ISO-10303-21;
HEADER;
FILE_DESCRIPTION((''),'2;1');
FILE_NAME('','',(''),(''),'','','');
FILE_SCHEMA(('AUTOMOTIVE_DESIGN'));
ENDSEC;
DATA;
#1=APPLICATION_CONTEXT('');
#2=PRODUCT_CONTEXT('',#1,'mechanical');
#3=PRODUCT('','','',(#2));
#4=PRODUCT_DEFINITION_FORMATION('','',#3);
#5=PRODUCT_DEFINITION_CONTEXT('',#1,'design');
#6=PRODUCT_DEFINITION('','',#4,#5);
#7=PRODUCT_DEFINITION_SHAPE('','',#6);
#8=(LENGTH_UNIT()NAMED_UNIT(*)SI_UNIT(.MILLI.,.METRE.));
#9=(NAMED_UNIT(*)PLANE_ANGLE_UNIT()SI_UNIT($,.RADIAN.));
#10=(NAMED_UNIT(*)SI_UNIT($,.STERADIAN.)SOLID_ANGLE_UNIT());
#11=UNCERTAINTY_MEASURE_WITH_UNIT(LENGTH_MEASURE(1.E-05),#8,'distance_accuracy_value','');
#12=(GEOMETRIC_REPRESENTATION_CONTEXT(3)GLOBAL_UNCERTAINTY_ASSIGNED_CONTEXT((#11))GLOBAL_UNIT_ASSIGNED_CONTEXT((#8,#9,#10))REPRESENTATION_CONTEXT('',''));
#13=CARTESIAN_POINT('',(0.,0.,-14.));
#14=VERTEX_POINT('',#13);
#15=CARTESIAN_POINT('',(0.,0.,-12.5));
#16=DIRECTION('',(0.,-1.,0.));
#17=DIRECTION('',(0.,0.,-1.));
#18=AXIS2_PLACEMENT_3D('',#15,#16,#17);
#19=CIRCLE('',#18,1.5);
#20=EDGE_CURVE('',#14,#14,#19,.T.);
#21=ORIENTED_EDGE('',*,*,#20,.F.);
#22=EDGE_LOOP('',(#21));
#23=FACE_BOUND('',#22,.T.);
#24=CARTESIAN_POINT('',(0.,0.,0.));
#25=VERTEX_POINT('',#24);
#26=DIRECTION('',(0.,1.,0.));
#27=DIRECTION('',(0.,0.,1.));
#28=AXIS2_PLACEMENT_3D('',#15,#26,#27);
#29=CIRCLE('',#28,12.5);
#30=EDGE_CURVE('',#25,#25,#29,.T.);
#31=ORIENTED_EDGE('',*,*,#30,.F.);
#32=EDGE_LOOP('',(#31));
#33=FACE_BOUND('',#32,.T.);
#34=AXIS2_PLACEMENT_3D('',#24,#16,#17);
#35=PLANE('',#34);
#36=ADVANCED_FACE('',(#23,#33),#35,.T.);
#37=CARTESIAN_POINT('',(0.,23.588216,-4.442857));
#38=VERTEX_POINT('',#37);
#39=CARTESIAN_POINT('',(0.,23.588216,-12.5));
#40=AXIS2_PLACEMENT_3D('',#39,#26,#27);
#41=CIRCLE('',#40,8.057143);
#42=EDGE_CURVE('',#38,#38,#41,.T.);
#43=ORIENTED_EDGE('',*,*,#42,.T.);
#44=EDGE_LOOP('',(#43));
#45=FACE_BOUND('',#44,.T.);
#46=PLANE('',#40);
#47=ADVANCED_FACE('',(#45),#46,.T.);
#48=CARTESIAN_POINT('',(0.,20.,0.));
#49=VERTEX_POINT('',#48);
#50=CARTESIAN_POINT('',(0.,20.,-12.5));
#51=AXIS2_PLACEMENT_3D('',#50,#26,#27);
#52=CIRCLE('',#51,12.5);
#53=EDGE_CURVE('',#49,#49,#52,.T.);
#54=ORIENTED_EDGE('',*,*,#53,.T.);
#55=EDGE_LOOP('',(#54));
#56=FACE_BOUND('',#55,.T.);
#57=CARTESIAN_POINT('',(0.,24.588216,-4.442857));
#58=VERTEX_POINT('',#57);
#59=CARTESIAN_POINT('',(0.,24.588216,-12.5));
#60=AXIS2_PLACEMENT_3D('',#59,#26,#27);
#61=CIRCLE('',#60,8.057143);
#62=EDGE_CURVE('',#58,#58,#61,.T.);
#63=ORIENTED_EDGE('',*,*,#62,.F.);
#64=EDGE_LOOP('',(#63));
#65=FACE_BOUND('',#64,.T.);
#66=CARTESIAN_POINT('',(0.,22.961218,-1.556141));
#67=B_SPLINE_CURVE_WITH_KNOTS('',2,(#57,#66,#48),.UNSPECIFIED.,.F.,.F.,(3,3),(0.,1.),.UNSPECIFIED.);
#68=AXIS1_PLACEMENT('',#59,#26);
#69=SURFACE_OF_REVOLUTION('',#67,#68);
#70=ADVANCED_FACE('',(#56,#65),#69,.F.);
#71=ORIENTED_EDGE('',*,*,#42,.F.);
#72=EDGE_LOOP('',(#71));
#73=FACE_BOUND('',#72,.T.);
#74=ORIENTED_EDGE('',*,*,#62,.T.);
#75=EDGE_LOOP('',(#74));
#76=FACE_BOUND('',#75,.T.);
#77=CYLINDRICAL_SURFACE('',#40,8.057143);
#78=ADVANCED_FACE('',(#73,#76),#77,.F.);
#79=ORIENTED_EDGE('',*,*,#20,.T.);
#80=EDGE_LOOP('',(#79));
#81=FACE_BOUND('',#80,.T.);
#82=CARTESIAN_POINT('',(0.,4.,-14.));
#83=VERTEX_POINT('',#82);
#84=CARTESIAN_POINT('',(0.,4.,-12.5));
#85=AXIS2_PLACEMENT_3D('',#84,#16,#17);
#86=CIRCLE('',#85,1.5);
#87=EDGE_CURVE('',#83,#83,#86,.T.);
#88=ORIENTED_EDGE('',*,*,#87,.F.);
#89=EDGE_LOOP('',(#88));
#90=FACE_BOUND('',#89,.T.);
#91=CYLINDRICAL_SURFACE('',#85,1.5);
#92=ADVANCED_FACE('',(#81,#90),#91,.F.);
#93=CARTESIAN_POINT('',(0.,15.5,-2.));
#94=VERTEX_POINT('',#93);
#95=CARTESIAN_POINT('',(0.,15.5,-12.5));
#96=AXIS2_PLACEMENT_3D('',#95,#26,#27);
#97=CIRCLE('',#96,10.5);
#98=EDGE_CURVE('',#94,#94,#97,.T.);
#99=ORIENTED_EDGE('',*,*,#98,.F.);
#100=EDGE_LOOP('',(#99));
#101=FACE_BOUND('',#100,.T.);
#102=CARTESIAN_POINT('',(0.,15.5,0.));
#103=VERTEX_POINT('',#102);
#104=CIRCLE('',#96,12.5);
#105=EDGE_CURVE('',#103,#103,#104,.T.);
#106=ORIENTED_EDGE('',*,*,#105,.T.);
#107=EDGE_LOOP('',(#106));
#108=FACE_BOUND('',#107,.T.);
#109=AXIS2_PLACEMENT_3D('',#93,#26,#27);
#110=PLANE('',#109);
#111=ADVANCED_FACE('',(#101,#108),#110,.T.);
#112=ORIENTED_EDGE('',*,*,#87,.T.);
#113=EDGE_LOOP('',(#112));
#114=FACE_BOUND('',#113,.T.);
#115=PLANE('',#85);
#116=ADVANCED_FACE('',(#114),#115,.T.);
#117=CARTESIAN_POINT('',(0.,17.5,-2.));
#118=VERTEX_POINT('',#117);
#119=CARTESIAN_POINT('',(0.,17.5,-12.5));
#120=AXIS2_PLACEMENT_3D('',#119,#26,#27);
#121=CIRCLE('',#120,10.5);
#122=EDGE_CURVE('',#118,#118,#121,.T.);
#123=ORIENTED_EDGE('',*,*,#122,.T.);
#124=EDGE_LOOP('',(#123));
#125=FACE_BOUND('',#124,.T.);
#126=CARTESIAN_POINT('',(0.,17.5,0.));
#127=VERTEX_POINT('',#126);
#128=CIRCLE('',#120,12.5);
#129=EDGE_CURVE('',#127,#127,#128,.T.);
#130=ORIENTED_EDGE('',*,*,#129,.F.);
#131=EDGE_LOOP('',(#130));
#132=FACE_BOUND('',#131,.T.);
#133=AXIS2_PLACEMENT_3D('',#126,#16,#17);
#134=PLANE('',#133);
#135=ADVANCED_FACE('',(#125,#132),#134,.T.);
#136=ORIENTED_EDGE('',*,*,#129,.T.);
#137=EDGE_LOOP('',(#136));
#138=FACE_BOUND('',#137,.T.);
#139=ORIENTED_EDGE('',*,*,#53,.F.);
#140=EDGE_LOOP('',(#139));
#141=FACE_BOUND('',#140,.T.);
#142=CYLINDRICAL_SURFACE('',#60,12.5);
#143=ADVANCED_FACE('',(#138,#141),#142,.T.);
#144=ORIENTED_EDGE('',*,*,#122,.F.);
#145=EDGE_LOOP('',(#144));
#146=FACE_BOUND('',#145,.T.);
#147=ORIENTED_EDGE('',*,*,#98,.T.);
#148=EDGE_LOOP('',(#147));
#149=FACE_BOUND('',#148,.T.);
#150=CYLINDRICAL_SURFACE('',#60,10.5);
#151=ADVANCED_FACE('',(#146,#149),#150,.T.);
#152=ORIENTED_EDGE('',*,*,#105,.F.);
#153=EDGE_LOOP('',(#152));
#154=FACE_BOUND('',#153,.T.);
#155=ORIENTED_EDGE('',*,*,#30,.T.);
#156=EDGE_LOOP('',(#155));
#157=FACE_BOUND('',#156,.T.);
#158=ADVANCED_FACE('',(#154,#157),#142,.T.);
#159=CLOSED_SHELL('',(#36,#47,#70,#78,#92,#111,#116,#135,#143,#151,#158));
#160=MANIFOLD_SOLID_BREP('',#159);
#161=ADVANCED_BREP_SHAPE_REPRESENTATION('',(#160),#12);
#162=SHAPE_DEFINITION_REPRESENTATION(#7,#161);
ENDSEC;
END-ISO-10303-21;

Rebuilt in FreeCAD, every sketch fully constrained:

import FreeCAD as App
import Part
import Sketcher

V = App.Vector

doc = App.newDocument("Part")
body = doc.addObject("PartDesign::Body", "Body")

# Sketch on YZ plane
sketch1 = body.newObject("Sketcher::SketchObject", "Sketch")
sketch1.AttachmentSupport = (doc.getObject("YZ_Plane"), [""])
sketch1.MapMode = "FlatFace"
sketch1.addGeometry([
    Part.LineSegment(V(15.5, 0, 0), V(0, 0, 0)),  # 0
    Part.LineSegment(V(0, 0, 0), V(0, -12.5, 0)),  # 1
    Part.LineSegment(V(0, -12.5, 0), V(24.588216, -12.5, 0)),  # 2
    Part.LineSegment(V(24.588216, -12.5, 0), V(24.588216, -4.442857, 0)),  # 3
    Part.BSplineCurve([V(20, 0, 0), V(22.961218, -1.556141, 0), V(24.588216, -4.442857, 0)], [3, 3], [0, 1], False, 2, [1, 1, 1], False),  # 4
    Part.LineSegment(V(20, 0, 0), V(17.5, 0, 0)),  # 5
    Part.LineSegment(V(17.5, 0, 0), V(17.5, -2, 0)),  # 6
    Part.LineSegment(V(17.5, -2, 0), V(15.5, -2, 0)),  # 7
    Part.LineSegment(V(15.5, -2, 0), V(15.5, 0, 0)),  # 8
], False)
sketch1.addGeometry(Part.LineSegment(V(24.588216, -12.5, 0), V(0, -12.5, 0)), True)  # axis
sketch1.addConstraint([
    Sketcher.Constraint("Block", 4),
    Sketcher.Constraint("Coincident", 0, 2, 1, 1),
    Sketcher.Constraint("Coincident", 1, 2, 2, 1),
    Sketcher.Constraint("Coincident", 2, 2, 3, 1),
    Sketcher.Constraint("Coincident", 3, 2, 4, 2),
    Sketcher.Constraint("Coincident", 4, 1, 5, 1),
    Sketcher.Constraint("Coincident", 5, 2, 6, 1),
    Sketcher.Constraint("Coincident", 6, 2, 7, 1),
    Sketcher.Constraint("Coincident", 7, 2, 8, 1),
    Sketcher.Constraint("Coincident", 8, 2, 0, 1),
    Sketcher.Constraint("Horizontal", 0),
    Sketcher.Constraint("Vertical", 1),
    Sketcher.Constraint("Horizontal", 2),
    Sketcher.Constraint("Vertical", 3),
    Sketcher.Constraint("Horizontal", 5),
    Sketcher.Constraint("Vertical", 6),
    Sketcher.Constraint("Horizontal", 7),
    Sketcher.Constraint("Vertical", 8),
    Sketcher.Constraint("Horizontal", 9),
    Sketcher.Constraint("Coincident", 0, 2, -1, 1),
    Sketcher.Constraint("Coincident", 9, 1, 2, 2),
    Sketcher.Constraint("PointOnObject", 9, 2, -2),
    Sketcher.Constraint("Equal", 7, 6),
    Sketcher.Constraint("DistanceX", 7, 2, 7, 1, 2.0),
    Sketcher.Constraint("DistanceX", 0, 2, 0, 1, 15.5),
    Sketcher.Constraint("DistanceY", 1, 2, 1, 1, 12.5),
])
revolution = body.newObject("PartDesign::Revolution", "Revolution")
revolution.Profile = sketch1
revolution.ReferenceAxis = (sketch1, ["Axis0"])
revolution.Angle = 360

# Sketch on XZ plane
sketch2 = body.newObject("Sketcher::SketchObject", "Sketch001")
sketch2.AttachmentSupport = (doc.getObject("XZ_Plane"), [""])
sketch2.MapMode = "FlatFace"
sketch2.addGeometry(Part.Circle(V(0, -12.5, 0), V(0, 0, 1), 1.5), False)
sketch2.addConstraint([
    Sketcher.Constraint("PointOnObject", 0, 3, -2),
    Sketcher.Constraint("Diameter", 0, 3.0),
    Sketcher.Constraint("DistanceY", 0, 3, -1, 1, 12.5),
])
pocket1 = body.newObject("PartDesign::Pocket", "Pocket")
pocket1.Profile = sketch2
pocket1.Length = 4

# Sketch on XZ plane
sketch3 = body.newObject("Sketcher::SketchObject", "Sketch002")
sketch3.AttachmentSupport = (doc.getObject("XZ_Plane"), [""])
sketch3.MapMode = "FlatFace"
sketch3.AttachmentOffset = App.Placement(V(0, 0, -24.588216), App.Rotation())
sketch3.addGeometry(Part.Circle(V(0, -12.5, 0), V(0, 0, 1), 8.057143), False)
sketch3.addConstraint([
    Sketcher.Constraint("PointOnObject", 0, 3, -2),
    Sketcher.Constraint("DistanceY", 0, 3, -1, 1, 12.5),
    Sketcher.Constraint("Diameter", 0, 16.114285),
])
pocket2 = body.newObject("PartDesign::Pocket", "Pocket001")
pocket2.Profile = sketch3
pocket2.Length = 1
pocket2.Reversed = True

doc.recompute()
